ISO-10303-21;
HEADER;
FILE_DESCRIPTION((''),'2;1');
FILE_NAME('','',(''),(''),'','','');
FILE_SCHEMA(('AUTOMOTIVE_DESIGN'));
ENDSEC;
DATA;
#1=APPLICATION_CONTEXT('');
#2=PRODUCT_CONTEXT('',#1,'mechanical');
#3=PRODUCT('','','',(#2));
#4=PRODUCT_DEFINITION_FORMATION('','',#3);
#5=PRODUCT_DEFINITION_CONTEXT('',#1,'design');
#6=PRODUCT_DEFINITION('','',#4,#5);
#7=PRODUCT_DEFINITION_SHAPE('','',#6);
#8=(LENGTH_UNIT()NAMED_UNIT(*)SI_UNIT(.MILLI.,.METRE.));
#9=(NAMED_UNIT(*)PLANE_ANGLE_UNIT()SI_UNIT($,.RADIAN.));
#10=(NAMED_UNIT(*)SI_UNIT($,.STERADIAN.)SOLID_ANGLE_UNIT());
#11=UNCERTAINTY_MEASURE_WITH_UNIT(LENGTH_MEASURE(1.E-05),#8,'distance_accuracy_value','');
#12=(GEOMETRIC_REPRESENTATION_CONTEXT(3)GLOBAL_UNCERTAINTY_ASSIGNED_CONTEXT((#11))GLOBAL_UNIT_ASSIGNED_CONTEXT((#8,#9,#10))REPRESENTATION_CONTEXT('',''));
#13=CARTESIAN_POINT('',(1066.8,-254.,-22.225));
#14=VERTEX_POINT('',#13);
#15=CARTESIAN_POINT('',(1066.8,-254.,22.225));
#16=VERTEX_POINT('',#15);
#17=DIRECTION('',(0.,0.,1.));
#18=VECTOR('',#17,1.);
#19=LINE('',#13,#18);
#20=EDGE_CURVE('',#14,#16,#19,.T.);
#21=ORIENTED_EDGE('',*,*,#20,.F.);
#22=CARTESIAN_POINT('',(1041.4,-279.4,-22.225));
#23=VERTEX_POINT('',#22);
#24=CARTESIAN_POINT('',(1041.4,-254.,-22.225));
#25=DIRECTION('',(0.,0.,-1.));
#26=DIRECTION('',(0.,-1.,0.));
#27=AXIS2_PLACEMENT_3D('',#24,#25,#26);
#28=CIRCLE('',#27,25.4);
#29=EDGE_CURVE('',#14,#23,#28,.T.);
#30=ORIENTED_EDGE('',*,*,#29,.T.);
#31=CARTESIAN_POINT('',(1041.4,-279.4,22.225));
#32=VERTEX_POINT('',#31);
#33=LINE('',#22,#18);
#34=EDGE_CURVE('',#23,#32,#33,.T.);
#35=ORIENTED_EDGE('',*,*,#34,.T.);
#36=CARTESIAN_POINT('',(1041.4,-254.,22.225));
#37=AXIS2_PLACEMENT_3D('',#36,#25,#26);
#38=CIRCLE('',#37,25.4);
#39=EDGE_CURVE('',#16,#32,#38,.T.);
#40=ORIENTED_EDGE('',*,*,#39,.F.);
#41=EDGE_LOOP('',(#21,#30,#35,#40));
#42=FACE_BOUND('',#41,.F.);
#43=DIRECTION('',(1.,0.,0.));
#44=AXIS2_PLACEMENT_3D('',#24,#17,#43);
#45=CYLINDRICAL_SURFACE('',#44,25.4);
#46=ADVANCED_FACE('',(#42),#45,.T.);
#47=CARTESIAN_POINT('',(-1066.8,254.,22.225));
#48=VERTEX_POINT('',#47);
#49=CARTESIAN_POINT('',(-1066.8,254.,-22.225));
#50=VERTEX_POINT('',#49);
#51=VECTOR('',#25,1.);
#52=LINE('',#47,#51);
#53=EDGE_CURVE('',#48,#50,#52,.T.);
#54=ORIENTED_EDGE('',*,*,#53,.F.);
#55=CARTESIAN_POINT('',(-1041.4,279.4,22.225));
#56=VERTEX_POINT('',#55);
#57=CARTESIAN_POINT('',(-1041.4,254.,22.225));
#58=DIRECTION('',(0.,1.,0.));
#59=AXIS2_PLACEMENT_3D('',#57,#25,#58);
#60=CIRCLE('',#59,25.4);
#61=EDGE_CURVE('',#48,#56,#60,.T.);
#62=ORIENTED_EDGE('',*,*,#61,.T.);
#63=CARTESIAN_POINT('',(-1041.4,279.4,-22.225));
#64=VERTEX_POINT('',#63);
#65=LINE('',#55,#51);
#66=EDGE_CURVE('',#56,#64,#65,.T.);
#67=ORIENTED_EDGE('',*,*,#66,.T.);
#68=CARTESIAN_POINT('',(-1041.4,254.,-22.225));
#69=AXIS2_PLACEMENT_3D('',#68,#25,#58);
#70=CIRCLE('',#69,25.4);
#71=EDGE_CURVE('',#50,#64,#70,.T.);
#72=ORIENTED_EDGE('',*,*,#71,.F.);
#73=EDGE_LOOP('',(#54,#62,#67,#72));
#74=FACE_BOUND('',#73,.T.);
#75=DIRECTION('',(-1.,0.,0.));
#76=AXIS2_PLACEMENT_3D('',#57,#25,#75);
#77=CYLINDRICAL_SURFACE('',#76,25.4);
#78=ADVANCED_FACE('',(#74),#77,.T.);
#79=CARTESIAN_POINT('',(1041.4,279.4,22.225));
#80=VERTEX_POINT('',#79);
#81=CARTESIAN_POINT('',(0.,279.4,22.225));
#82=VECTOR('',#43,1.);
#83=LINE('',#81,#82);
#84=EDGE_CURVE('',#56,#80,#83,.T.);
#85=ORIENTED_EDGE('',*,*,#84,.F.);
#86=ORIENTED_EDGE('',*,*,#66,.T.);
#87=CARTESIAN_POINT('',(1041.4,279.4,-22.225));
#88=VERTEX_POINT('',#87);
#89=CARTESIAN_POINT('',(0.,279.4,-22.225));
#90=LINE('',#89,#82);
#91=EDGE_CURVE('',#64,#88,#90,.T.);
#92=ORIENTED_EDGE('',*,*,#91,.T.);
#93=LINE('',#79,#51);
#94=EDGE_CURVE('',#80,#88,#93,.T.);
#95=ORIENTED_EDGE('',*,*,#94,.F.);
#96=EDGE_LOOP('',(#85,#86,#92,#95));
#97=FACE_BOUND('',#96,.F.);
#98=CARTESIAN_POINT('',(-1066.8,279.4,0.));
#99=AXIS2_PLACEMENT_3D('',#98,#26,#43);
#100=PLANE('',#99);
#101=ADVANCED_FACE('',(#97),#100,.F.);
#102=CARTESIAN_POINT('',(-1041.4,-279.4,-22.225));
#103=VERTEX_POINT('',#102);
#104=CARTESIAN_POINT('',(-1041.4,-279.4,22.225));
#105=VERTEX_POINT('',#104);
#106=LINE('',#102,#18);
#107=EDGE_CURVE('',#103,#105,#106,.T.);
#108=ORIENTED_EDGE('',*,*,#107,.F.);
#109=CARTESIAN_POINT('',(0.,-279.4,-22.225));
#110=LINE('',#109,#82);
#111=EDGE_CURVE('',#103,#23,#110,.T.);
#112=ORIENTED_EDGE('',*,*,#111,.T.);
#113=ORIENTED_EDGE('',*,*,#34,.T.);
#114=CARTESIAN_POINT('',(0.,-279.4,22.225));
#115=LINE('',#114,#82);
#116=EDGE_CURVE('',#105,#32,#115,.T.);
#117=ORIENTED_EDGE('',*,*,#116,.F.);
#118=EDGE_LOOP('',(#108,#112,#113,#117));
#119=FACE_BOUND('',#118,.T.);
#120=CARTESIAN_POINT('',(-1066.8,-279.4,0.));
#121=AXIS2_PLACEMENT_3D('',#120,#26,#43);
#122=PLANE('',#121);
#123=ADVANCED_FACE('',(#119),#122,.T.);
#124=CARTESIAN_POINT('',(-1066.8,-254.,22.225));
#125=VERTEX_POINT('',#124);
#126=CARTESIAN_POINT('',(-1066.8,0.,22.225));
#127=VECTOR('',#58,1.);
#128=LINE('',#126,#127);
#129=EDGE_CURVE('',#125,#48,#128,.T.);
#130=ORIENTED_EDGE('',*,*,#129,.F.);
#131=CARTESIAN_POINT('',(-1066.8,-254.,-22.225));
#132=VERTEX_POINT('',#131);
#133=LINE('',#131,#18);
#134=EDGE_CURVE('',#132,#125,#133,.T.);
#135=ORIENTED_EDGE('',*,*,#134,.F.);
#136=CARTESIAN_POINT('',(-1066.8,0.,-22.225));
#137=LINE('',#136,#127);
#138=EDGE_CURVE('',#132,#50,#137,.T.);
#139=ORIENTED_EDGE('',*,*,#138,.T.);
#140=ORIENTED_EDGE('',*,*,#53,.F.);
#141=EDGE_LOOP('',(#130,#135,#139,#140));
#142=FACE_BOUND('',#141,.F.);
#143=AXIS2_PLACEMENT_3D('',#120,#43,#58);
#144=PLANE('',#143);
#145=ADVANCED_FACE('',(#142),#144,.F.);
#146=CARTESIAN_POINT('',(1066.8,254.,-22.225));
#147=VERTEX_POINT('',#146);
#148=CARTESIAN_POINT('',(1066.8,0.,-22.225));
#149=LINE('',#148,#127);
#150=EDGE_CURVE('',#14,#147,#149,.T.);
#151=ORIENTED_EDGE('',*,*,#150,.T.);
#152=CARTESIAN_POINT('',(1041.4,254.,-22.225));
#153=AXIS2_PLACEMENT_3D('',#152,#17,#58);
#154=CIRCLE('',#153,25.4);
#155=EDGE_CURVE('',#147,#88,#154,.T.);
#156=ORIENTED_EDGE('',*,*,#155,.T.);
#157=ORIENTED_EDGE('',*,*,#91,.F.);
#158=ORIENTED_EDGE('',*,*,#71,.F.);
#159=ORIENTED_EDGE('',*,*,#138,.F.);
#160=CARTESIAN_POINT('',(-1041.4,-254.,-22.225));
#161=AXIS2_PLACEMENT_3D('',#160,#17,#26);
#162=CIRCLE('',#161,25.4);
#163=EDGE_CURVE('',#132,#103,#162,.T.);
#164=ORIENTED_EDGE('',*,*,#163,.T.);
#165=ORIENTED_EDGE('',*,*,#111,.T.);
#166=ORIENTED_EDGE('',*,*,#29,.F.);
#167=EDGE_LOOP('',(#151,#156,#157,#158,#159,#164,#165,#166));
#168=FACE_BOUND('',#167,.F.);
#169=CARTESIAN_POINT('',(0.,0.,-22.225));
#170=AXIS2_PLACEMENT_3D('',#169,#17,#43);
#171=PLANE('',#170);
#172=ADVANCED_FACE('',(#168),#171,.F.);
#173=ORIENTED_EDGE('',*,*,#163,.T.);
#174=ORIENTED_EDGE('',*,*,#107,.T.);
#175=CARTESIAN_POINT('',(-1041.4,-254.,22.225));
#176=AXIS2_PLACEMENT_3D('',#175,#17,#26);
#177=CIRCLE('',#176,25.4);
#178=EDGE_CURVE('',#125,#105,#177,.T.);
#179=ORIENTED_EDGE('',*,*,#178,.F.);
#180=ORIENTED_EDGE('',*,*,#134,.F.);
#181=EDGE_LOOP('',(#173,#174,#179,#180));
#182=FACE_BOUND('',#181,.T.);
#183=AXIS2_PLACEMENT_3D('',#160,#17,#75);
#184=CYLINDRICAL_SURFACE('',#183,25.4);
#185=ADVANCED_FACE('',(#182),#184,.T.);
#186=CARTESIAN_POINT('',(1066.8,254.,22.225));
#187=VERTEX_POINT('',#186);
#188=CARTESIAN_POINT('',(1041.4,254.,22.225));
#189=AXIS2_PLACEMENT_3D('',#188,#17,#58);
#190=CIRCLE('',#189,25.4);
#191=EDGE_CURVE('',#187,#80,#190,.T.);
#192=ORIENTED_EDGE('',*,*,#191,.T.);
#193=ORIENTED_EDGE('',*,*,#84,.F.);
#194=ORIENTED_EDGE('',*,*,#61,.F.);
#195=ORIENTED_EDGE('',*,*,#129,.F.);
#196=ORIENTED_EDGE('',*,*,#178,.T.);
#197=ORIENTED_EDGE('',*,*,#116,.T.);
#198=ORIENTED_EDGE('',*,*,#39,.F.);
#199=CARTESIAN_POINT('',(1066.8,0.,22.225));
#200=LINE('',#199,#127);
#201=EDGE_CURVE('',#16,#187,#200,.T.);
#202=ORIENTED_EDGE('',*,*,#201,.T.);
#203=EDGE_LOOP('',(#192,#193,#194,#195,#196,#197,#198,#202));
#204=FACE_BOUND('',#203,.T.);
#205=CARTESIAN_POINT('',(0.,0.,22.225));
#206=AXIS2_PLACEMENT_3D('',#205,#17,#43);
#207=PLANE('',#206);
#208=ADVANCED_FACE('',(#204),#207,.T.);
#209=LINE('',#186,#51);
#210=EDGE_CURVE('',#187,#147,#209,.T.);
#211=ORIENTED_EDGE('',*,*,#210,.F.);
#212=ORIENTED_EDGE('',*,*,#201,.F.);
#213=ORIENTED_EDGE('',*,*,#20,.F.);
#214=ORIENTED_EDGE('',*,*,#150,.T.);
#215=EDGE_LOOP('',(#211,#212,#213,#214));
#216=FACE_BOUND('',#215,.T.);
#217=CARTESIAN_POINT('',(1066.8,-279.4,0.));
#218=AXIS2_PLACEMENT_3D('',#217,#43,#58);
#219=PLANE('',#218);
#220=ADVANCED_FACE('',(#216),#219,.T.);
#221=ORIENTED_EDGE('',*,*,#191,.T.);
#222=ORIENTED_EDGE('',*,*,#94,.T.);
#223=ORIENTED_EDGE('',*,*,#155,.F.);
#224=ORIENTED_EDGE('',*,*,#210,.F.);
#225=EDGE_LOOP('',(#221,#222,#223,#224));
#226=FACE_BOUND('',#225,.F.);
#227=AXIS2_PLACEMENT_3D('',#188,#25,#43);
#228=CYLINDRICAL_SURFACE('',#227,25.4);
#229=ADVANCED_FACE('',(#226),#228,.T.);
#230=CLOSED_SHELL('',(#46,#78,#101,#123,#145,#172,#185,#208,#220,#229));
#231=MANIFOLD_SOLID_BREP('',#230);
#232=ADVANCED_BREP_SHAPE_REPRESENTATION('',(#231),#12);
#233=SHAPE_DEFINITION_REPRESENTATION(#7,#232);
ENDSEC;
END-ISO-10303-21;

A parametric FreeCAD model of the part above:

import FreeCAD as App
import Part
import Sketcher
from FreeCAD import Vector
Q = App.Units.Quantity


def edges_at(feature, points):
    """Names of the edges that pass closest to the given points."""
    edges = feature.Shape.Edges
    near = lambda p: min(range(len(edges)), key=lambda i: edges[i].distToShape(Part.Vertex(*p))[0])
    return sorted({f"Edge{near(p) + 1}" for p in points})


def add_polygon(sketch, points):
    """Adds a closed chain of lines whose ends are joined by coincident constraints."""
    first, n = sketch.GeometryCount, len(points)
    for a, b in zip(points, points[1:] + points[:1]):
        sketch.addGeometry(Part.LineSegment(App.Vector(*a, 0), App.Vector(*b, 0)), False)
    for i in range(n):
        sketch.addConstraint(Sketcher.Constraint("Coincident", first + i, 2, first + (i + 1) % n, 1))

doc = App.newDocument("Part")
body = doc.addObject("PartDesign::Body", "Body")

# Sketch on XY plane
sketch1 = doc.addObject("Sketcher::SketchObject", "Sketch")
body.addObject(sketch1)
sketch1.AttachmentSupport = (doc.XY_Plane, [""])
sketch1.MapMode = "FlatFace"
add_polygon(sketch1, [(-1067, 279), (-1067, -279), (1067, -279), (1067, 279)])  # lines 0-3
sketch1.addConstraint([
    Sketcher.Constraint("Vertical", 0),
    Sketcher.Constraint("Horizontal", 1),
    Sketcher.Constraint("Vertical", 2),
    Sketcher.Constraint("Horizontal", 3),
    Sketcher.Constraint("Symmetric", 0, 2, 2, 2, -1, 1),
    Sketcher.Constraint("DistanceX", 1, 1, 1, 2, Q("84 in")),
    Sketcher.Constraint("DistanceY", 0, 2, 0, 1, Q("22 in")),
])
pad1 = doc.addObject("PartDesign::Pad", "Pad")
body.addObject(pad1)
pad1.Profile = sketch1
pad1.Length = Q("1.75 in")
pad1.Midplane = True
doc.recompute()

fillet = doc.addObject("PartDesign::Fillet", "Fillet")
body.addObject(fillet)
fillet.Base = (pad1, edges_at(pad1, [
    (1066.8, -279.4, 0),
    (1066.8, 279.4, 0),
    (-1066.8, -279.4, 0),
    (-1066.8, 279.4, 0),
]))
fillet.Radius = Q("1 in")

doc.recompute()
